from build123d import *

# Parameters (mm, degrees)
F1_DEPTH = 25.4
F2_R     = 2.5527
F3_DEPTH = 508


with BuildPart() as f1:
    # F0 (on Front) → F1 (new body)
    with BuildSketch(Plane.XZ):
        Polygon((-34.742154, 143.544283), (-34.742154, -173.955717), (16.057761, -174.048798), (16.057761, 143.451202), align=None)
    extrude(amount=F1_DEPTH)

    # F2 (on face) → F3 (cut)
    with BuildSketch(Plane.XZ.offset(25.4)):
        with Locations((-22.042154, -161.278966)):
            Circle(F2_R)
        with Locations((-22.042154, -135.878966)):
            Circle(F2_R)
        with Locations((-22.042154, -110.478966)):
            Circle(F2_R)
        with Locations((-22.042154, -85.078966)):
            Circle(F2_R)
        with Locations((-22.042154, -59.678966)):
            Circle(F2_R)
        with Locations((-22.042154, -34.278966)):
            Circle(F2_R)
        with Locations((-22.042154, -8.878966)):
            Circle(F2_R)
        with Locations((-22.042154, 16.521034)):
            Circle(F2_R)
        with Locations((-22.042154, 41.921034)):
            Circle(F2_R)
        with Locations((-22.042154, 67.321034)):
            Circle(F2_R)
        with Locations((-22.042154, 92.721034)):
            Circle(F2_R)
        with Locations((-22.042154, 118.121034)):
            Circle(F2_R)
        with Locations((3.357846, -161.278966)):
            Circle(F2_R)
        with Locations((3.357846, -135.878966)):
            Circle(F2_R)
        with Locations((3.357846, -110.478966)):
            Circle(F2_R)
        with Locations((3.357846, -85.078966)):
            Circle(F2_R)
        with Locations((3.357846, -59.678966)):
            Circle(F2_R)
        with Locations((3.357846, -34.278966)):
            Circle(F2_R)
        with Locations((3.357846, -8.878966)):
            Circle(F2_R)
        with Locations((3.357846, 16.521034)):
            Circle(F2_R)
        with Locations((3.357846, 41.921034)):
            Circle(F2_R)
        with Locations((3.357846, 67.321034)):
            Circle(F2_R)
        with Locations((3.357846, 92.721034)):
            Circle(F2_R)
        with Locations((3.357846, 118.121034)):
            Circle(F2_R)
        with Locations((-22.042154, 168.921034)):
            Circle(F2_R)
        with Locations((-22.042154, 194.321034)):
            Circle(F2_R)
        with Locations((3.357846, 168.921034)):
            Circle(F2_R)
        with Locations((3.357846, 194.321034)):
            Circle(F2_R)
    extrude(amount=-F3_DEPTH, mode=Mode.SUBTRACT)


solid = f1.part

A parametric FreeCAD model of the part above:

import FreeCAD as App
import Part
import Sketcher
from FreeCAD import Vector
Q = App.Units.Quantity

doc = App.newDocument("Part")
body = doc.addObject("PartDesign::Body", "Body")

# Sketch on XZ plane
sketch1 = doc.addObject("Sketcher::SketchObject", "Sketch")
body.addObject(sketch1)
sketch1.AttachmentSupport = (doc.XZ_Plane, [""])
sketch1.MapMode = "FlatFace"
sketch1.addGeometry([
    Part.LineSegment(Vector(-35, 144, 0), Vector(-35, -174, 0)),
    Part.LineSegment(Vector(-35, -174, 0), Vector(16, -174, 0)),
    Part.LineSegment(Vector(16, -174, 0), Vector(16, 143, 0)),
    Part.LineSegment(Vector(16, 143, 0), Vector(-35, 144, 0)),
], False)
sketch1.addConstraint([
    Sketcher.Constraint("Coincident", 0, 2, 1, 1),
    Sketcher.Constraint("Coincident", 1, 2, 2, 1),
    Sketcher.Constraint("Coincident", 2, 2, 3, 1),
    Sketcher.Constraint("Coincident", 3, 2, 0, 1),
    Sketcher.Constraint("Vertical", 0),
    Sketcher.Constraint("Vertical", 2),
    Sketcher.Constraint("Parallel", 1, 3),
    Sketcher.Constraint("Distance", 1, Q("2 in")),
    Sketcher.Constraint("DistanceY", 0, 2, 0, 1, Q("12.5 in")),
    Sketcher.Constraint("DistanceY", 1, 2, -1, 1, Q("174.048798 mm")),
    Sketcher.Constraint("DistanceX", -1, 1, 1, 2, Q("16.057761 mm")),
    Sketcher.Constraint("DistanceY", 1, 2, 0, 2, Q("0.093081 mm")),
])
pad1 = doc.addObject("PartDesign::Pad", "Pad")
body.addObject(pad1)
pad1.Profile = sketch1
pad1.Length = Q("1 in")

# Sketch on XZ plane
sketch2 = doc.addObject("Sketcher::SketchObject", "Sketch001")
body.addObject(sketch2)
sketch2.AttachmentSupport = (doc.XZ_Plane, [""])
sketch2.MapMode = "FlatFace"
sketch2.AttachmentOffset = App.Placement(Vector(0, 0, 1 * 25.4), App.Rotation())
sketch2.addGeometry([
    Part.Circle(Vector(-22, -161.3, 0), Vector(0, 0, 1), 2.6),  # 0
    Part.Circle(Vector(-22, -135.9, 0), Vector(0, 0, 1), 2.6),  # 1
    Part.Circle(Vector(-22, -110.5, 0), Vector(0, 0, 1), 2.6),  # 2
    Part.Circle(Vector(-22, -85.1, 0), Vector(0, 0, 1), 2.6),  # 3
    Part.Circle(Vector(-22, -59.7, 0), Vector(0, 0, 1), 2.6),  # 4
    Part.Circle(Vector(-22, -34.3, 0), Vector(0, 0, 1), 2.6),  # 5
    Part.Circle(Vector(-22, -8.9, 0), Vector(0, 0, 1), 2.6),  # 6
    Part.Circle(Vector(-22, 16.5, 0), Vector(0, 0, 1), 2.6),  # 7
    Part.Circle(Vector(-22, 41.9, 0), Vector(0, 0, 1), 2.6),  # 8
    Part.Circle(Vector(-22, 67.3, 0), Vector(0, 0, 1), 2.6),  # 9
    Part.Circle(Vector(-22, 92.7, 0), Vector(0, 0, 1), 2.6),  # 10
    Part.Circle(Vector(-22, 118.1, 0), Vector(0, 0, 1), 2.6),  # 11
    Part.Circle(Vector(3.4, -161.3, 0), Vector(0, 0, 1), 2.6),  # 12
    Part.Circle(Vector(3.4, -135.9, 0), Vector(0, 0, 1), 2.6),  # 13
    Part.Circle(Vector(3.4, -110.5, 0), Vector(0, 0, 1), 2.6),  # 14
    Part.Circle(Vector(3.4, -85.1, 0), Vector(0, 0, 1), 2.6),  # 15
    Part.Circle(Vector(3.4, -59.7, 0), Vector(0, 0, 1), 2.6),  # 16
    Part.Circle(Vector(3.4, -34.3, 0), Vector(0, 0, 1), 2.6),  # 17
    Part.Circle(Vector(3.4, -8.9, 0), Vector(0, 0, 1), 2.6),  # 18
    Part.Circle(Vector(3.4, 16.5, 0), Vector(0, 0, 1), 2.6),  # 19
    Part.Circle(Vector(3.4, 41.9, 0), Vector(0, 0, 1), 2.6),  # 20
    Part.Circle(Vector(3.4, 67.3, 0), Vector(0, 0, 1), 2.6),  # 21
    Part.Circle(Vector(3.4, 92.7, 0), Vector(0, 0, 1), 2.6),  # 22
    Part.Circle(Vector(3.4, 118.1, 0), Vector(0, 0, 1), 2.6),  # 23
    Part.Circle(Vector(-22, 168.9, 0), Vector(0, 0, 1), 2.6),  # 24
    Part.Circle(Vector(-22, 194.3, 0), Vector(0, 0, 1), 2.6),  # 25
    Part.Circle(Vector(3.4, 168.9, 0), Vector(0, 0, 1), 2.6),  # 26
    Part.Circle(Vector(3.4, 194.3, 0), Vector(0, 0, 1), 2.6),  # 27
], False)
sketch2.addConstraint([
    Sketcher.Constraint("Equal", 0, 1),
    Sketcher.Constraint("Equal", 1, 2),
    Sketcher.Constraint("Equal", 2, 3),
    Sketcher.Constraint("Equal", 3, 4),
    Sketcher.Constraint("Equal", 4, 5),
    Sketcher.Constraint("Equal", 5, 6),
    Sketcher.Constraint("Equal", 6, 7),
    Sketcher.Constraint("Equal", 7, 8),
    Sketcher.Constraint("Equal", 8, 9),
    Sketcher.Constraint("Equal", 9, 10),
    Sketcher.Constraint("Equal", 10, 11),
    Sketcher.Constraint("Equal", 11, 12),
    Sketcher.Constraint("Equal", 12, 13),
    Sketcher.Constraint("Equal", 13, 14),
    Sketcher.Constraint("Equal", 14, 15),
    Sketcher.Constraint("Equal", 15, 16),
    Sketcher.Constraint("Equal", 16, 17),
    Sketcher.Constraint("Equal", 17, 18),
    Sketcher.Constraint("Equal", 18, 19),
    Sketcher.Constraint("Equal", 19, 20),
    Sketcher.Constraint("Equal", 20, 21),
    Sketcher.Constraint("Equal", 21, 22),
    Sketcher.Constraint("Equal", 22, 23),
    Sketcher.Constraint("Equal", 23, 24),
    Sketcher.Constraint("Equal", 24, 25),
    Sketcher.Constraint("Equal", 25, 26),
    Sketcher.Constraint("Equal", 26, 27),
    Sketcher.Constraint("Horizontal", 0, 3, 12, 3),
    Sketcher.Constraint("Horizontal", 1, 3, 13, 3),
    Sketcher.Constraint("Horizontal", 2, 3, 14, 3),
    Sketcher.Constraint("Horizontal", 3, 3, 15, 3),
    Sketcher.Constraint("Horizontal", 4, 3, 16, 3),
    Sketcher.Constraint("Horizontal", 5, 3, 17, 3),
    Sketcher.Constraint("Horizontal", 6, 3, 18, 3),
    Sketcher.Constraint("Horizontal", 7, 3, 19, 3),
    Sketcher.Constraint("Horizontal", 8, 3, 20, 3),
    Sketcher.Constraint("Horizontal", 9, 3, 21, 3),
    Sketcher.Constraint("Horizontal", 10, 3, 22, 3),
    Sketcher.Constraint("Horizontal", 11, 3, 23, 3),
    Sketcher.Constraint("Horizontal", 24, 3, 26, 3),
    Sketcher.Constraint("Horizontal", 25, 3, 27, 3),
    Sketcher.Constraint("Vertical", 0, 3, 1, 3),
    Sketcher.Constraint("Vertical", 1, 3, 2, 3),
    Sketcher.Constraint("Vertical", 2, 3, 3, 3),
    Sketcher.Constraint("Vertical", 3, 3, 4, 3),
    Sketcher.Constraint("Vertical", 4, 3, 5, 3),
    Sketcher.Constraint("Vertical", 5, 3, 6, 3),
    Sketcher.Constraint("Vertical", 6, 3, 7, 3),
    Sketcher.Constraint("Vertical", 7, 3, 8, 3),
    Sketcher.Constraint("Vertical", 8, 3, 9, 3),
    Sketcher.Constraint("Vertical", 9, 3, 10, 3),
    Sketcher.Constraint("Vertical", 10, 3, 11, 3),
    Sketcher.Constraint("Vertical", 12, 3, 13, 3),
    Sketcher.Constraint("Vertical", 13, 3, 14, 3),
    Sketcher.Constraint("Vertical", 14, 3, 15, 3),
    Sketcher.Constraint("Vertical", 15, 3, 16, 3),
    Sketcher.Constraint("Vertical", 16, 3, 17, 3),
    Sketcher.Constraint("Vertical", 17, 3, 18, 3),
    Sketcher.Constraint("Vertical", 18, 3, 19, 3),
    Sketcher.Constraint("Vertical", 19, 3, 20, 3),
    Sketcher.Constraint("Vertical", 20, 3, 21, 3),
    Sketcher.Constraint("Vertical", 21, 3, 22, 3),
    Sketcher.Constraint("Vertical", 22, 3, 23, 3),
    Sketcher.Constraint("Vertical", 11, 3, 24, 3),
    Sketcher.Constraint("Vertical", 24, 3, 25, 3),
    Sketcher.Constraint("Vertical", 23, 3, 26, 3),
    Sketcher.Constraint("Vertical", 26, 3, 27, 3),
    Sketcher.Constraint("Diameter", 0, Q("0.201 in")),
    Sketcher.Constraint("DistanceY", 0, 3, 1, 3, Q("1 in")),
    Sketcher.Constraint("DistanceY", 1, 3, 2, 3, Q("1 in")),
    Sketcher.Constraint("DistanceY", 2, 3, 3, 3, Q("1 in")),
    Sketcher.Constraint("DistanceY", 3, 3, 4, 3, Q("1 in")),
    Sketcher.Constraint("DistanceY", 4, 3, 5, 3, Q("1 in")),
    Sketcher.Constraint("DistanceY", 5, 3, 6, 3, Q("1 in")),
    Sketcher.Constraint("DistanceY", 6, 3, 7, 3, Q("1 in")),
    Sketcher.Constraint("DistanceY", 7, 3, 8, 3, Q("1 in")),
    Sketcher.Constraint("DistanceY", 8, 3, 9, 3, Q("1 in")),
    Sketcher.Constraint("DistanceY", 9, 3, 10, 3, Q("1 in")),
    Sketcher.Constraint("DistanceY", 10, 3, 11, 3, Q("1 in")),
    Sketcher.Constraint("DistanceX", 0, 3, 12, 3, Q("1 in")),
    Sketcher.Constraint("DistanceY", 11, 3, 24, 3, Q("2 in")),
    Sketcher.Constraint("DistanceY", 24, 3, 25, 3, Q("1 in")),
    Sketcher.Constraint("DistanceX", 0, 3, -1, 1, Q("22.042154 mm")),
    Sketcher.Constraint("DistanceY", 0, 3, -1, 1, Q("161.278966 mm")),
])
pocket1 = doc.addObject("PartDesign::Pocket", "Pocket")
body.addObject(pocket1)
pocket1.Profile = sketch2
pocket1.Length = Q("20 in")

doc.recompute()
